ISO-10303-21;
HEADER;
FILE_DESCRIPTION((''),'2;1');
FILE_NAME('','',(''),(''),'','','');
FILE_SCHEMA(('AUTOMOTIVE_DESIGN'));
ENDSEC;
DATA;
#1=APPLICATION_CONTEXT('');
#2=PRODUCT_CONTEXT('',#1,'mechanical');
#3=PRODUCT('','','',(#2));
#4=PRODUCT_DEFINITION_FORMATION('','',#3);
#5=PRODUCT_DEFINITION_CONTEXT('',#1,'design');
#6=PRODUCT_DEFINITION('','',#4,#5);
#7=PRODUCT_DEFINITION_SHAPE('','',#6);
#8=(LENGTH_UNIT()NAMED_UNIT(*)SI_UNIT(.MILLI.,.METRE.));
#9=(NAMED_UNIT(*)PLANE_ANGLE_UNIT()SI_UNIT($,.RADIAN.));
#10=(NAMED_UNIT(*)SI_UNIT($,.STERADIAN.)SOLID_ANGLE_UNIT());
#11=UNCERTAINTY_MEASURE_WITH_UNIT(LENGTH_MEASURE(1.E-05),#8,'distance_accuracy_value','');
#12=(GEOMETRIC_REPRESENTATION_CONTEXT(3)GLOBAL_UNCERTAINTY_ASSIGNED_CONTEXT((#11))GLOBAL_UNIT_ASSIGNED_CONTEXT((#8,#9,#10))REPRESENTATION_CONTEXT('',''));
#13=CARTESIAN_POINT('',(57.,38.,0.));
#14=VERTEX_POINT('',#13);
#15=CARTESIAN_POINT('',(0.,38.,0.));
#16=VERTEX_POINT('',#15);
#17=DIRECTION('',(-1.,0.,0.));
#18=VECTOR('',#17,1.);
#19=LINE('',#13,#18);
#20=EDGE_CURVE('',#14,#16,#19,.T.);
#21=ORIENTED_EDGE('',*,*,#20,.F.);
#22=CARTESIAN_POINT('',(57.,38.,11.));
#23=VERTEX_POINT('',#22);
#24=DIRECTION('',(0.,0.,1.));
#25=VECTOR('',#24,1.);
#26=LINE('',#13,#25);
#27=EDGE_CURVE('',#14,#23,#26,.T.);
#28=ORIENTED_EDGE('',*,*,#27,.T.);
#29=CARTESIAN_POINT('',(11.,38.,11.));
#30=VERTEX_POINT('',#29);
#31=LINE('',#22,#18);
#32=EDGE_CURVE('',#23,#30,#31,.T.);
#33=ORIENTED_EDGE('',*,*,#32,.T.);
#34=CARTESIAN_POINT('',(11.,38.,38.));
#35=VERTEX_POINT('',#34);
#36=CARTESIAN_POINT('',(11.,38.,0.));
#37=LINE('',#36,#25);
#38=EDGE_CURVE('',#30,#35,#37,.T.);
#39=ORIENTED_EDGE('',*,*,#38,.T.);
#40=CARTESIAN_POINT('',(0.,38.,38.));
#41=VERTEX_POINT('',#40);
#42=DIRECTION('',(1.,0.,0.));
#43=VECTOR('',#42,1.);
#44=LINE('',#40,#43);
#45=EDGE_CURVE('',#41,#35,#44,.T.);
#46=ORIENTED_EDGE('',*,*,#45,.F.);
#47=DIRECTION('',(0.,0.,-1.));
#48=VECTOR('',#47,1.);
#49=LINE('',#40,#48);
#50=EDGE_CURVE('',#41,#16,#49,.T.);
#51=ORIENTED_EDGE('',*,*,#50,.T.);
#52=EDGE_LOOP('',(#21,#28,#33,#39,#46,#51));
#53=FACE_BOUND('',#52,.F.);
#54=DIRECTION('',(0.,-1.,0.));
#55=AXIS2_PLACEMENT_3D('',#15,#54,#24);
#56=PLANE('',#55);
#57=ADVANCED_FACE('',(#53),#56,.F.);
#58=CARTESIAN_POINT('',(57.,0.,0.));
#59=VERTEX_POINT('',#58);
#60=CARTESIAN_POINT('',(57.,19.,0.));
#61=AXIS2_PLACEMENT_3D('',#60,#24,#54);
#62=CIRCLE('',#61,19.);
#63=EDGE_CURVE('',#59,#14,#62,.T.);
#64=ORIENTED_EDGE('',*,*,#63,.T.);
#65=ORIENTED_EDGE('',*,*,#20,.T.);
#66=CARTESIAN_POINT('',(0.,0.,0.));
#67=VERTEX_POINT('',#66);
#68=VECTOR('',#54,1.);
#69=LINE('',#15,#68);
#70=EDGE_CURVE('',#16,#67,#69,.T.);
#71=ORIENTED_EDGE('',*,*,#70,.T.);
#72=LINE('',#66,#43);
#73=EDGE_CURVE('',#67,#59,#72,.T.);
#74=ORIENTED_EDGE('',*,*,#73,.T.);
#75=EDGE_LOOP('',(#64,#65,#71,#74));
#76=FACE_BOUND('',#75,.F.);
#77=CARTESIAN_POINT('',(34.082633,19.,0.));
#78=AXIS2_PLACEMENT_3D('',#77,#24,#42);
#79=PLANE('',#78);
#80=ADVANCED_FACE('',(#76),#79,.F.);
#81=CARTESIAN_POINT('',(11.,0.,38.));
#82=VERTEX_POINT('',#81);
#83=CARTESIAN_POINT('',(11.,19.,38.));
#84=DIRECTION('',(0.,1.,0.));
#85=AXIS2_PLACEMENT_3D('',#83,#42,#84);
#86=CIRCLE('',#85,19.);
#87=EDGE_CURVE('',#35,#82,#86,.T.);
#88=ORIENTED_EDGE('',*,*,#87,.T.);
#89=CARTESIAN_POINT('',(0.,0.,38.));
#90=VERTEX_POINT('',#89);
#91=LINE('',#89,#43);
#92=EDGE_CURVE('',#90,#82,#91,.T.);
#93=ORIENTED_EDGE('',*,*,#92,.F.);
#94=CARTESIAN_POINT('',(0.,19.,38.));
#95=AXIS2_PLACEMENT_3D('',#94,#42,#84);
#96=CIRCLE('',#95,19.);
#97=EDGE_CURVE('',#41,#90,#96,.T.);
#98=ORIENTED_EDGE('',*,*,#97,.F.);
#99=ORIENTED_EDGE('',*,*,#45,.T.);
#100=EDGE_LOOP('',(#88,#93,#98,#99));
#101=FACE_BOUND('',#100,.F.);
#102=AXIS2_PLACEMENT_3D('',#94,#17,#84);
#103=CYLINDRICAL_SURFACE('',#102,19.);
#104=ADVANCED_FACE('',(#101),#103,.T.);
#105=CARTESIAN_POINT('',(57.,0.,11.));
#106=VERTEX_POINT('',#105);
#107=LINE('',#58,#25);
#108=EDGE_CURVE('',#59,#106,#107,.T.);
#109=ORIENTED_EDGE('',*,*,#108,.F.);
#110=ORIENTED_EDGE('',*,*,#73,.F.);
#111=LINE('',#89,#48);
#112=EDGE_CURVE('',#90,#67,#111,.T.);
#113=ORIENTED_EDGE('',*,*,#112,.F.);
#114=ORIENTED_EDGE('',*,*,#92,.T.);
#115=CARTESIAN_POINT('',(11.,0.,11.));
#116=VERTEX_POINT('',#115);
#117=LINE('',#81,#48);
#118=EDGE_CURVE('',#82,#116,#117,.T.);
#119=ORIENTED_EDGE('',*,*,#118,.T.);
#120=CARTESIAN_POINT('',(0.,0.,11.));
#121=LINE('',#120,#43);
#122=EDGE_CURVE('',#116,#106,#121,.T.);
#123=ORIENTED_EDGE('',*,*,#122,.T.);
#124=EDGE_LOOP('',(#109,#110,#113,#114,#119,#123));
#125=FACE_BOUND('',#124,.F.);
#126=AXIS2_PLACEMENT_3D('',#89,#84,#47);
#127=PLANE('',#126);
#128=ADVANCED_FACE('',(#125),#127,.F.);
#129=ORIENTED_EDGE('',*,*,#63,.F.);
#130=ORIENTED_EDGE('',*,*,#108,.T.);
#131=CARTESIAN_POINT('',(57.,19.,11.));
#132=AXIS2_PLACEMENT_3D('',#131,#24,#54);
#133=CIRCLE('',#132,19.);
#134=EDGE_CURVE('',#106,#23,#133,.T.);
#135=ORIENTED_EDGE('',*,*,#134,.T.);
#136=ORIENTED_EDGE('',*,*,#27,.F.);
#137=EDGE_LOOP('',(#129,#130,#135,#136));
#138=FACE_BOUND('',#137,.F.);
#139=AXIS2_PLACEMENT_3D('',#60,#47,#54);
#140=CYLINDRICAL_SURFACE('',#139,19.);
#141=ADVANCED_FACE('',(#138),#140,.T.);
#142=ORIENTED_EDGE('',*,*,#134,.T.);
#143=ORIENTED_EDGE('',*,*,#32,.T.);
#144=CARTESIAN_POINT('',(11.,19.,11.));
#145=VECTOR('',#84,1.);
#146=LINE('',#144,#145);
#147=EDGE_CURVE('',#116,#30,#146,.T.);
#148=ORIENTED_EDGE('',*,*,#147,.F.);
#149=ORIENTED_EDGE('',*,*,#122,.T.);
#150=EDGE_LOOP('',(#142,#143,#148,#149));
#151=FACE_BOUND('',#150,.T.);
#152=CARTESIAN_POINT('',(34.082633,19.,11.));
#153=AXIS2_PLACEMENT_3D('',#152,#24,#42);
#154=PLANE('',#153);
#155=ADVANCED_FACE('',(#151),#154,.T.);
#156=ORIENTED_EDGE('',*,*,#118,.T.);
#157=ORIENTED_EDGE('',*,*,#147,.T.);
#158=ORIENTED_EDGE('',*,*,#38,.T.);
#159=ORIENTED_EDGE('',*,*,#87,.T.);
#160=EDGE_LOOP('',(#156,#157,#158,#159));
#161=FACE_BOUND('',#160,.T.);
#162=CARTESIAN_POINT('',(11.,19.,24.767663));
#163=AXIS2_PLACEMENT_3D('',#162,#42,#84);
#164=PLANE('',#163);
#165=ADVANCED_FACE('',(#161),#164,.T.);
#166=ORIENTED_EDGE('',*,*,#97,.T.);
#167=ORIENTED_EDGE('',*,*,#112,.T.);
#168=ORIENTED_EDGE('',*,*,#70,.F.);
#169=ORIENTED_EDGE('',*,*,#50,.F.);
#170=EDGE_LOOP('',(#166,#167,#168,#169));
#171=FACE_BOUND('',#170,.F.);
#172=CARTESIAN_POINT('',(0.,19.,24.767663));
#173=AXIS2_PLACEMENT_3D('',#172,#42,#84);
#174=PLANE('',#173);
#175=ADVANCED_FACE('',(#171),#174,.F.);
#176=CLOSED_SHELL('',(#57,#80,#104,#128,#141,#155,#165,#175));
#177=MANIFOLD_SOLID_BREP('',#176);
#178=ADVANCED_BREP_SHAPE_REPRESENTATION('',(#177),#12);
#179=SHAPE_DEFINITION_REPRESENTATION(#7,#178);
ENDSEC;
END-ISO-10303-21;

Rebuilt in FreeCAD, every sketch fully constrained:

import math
import FreeCAD as App
import Part
import Sketcher

doc = App.newDocument("Part")
body = doc.addObject("PartDesign::Body", "Body")

# Sketch on XY plane
sketch1 = body.newObject("Sketcher::SketchObject", "Sketch")
sketch1.AttachmentSupport = (doc.getObject("XY_Plane"), [""])
sketch1.MapMode = "FlatFace"
sketch1.addGeometry([
    Part.LineSegment(App.Vector(0, 38, 0), App.Vector(0, 0, 0)),
    Part.LineSegment(App.Vector(0, 0, 0), App.Vector(57, 0, 0)),
    Part.ArcOfCircle(Part.Circle(App.Vector(57, 19, 0), App.Vector(0, 0, 1), 19), math.radians(-90), math.radians(90)),
    Part.LineSegment(App.Vector(57, 38, 0), App.Vector(0, 38, 0)),
], False)
sketch1.addConstraint([
    Sketcher.Constraint("Coincident", 0, 2, 1, 1),
    Sketcher.Constraint("Tangent", 1, 2, 2, 1),
    Sketcher.Constraint("Tangent", 2, 2, 3, 1),
    Sketcher.Constraint("Coincident", 3, 2, 0, 1),
    Sketcher.Constraint("Vertical", 0),
    Sketcher.Constraint("Horizontal", 1),
    Sketcher.Constraint("Horizontal", 3),
    Sketcher.Constraint("Coincident", 0, 2, -1, 1),
    Sketcher.Constraint("Radius", 2, 19.0),
    Sketcher.Constraint("DistanceX", 1, 1, 1, 2, 57.0),
])
pad1 = body.newObject("PartDesign::Pad", "Pad")
pad1.Profile = sketch1
pad1.Length = 11

# Sketch on YZ plane
sketch2 = body.newObject("Sketcher::SketchObject", "Sketch001")
sketch2.AttachmentSupport = (doc.getObject("YZ_Plane"), [""])
sketch2.MapMode = "FlatFace"
sketch2.addGeometry([
    Part.LineSegment(App.Vector(0, 38, 0), App.Vector(0, 0, 0)),
    Part.LineSegment(App.Vector(0, 0, 0), App.Vector(38, 0, 0)),
    Part.LineSegment(App.Vector(38, 0, 0), App.Vector(38, 38, 0)),
    Part.ArcOfCircle(Part.Circle(App.Vector(19, 38, 0), App.Vector(0, 0, 1), 19), math.radians(0), math.radians(180)),
], False)
sketch2.addConstraint([
    Sketcher.Constraint("Coincident", 0, 2, 1, 1),
    Sketcher.Constraint("Coincident", 1, 2, 2, 1),
    Sketcher.Constraint("Tangent", 2, 2, 3, 1),
    Sketcher.Constraint("Tangent", 3, 2, 0, 1),
    Sketcher.Constraint("Vertical", 0),
    Sketcher.Constraint("Horizontal", 1),
    Sketcher.Constraint("Vertical", 2),
    Sketcher.Constraint("Coincident", 0, 2, -1, 1),
    Sketcher.Constraint("Equal", 1, 0),
    Sketcher.Constraint("Radius", 3, 19.0),
])
pad2 = body.newObject("PartDesign::Pad", "Pad001")
pad2.Profile = sketch2
pad2.Length = 11

doc.recompute()
